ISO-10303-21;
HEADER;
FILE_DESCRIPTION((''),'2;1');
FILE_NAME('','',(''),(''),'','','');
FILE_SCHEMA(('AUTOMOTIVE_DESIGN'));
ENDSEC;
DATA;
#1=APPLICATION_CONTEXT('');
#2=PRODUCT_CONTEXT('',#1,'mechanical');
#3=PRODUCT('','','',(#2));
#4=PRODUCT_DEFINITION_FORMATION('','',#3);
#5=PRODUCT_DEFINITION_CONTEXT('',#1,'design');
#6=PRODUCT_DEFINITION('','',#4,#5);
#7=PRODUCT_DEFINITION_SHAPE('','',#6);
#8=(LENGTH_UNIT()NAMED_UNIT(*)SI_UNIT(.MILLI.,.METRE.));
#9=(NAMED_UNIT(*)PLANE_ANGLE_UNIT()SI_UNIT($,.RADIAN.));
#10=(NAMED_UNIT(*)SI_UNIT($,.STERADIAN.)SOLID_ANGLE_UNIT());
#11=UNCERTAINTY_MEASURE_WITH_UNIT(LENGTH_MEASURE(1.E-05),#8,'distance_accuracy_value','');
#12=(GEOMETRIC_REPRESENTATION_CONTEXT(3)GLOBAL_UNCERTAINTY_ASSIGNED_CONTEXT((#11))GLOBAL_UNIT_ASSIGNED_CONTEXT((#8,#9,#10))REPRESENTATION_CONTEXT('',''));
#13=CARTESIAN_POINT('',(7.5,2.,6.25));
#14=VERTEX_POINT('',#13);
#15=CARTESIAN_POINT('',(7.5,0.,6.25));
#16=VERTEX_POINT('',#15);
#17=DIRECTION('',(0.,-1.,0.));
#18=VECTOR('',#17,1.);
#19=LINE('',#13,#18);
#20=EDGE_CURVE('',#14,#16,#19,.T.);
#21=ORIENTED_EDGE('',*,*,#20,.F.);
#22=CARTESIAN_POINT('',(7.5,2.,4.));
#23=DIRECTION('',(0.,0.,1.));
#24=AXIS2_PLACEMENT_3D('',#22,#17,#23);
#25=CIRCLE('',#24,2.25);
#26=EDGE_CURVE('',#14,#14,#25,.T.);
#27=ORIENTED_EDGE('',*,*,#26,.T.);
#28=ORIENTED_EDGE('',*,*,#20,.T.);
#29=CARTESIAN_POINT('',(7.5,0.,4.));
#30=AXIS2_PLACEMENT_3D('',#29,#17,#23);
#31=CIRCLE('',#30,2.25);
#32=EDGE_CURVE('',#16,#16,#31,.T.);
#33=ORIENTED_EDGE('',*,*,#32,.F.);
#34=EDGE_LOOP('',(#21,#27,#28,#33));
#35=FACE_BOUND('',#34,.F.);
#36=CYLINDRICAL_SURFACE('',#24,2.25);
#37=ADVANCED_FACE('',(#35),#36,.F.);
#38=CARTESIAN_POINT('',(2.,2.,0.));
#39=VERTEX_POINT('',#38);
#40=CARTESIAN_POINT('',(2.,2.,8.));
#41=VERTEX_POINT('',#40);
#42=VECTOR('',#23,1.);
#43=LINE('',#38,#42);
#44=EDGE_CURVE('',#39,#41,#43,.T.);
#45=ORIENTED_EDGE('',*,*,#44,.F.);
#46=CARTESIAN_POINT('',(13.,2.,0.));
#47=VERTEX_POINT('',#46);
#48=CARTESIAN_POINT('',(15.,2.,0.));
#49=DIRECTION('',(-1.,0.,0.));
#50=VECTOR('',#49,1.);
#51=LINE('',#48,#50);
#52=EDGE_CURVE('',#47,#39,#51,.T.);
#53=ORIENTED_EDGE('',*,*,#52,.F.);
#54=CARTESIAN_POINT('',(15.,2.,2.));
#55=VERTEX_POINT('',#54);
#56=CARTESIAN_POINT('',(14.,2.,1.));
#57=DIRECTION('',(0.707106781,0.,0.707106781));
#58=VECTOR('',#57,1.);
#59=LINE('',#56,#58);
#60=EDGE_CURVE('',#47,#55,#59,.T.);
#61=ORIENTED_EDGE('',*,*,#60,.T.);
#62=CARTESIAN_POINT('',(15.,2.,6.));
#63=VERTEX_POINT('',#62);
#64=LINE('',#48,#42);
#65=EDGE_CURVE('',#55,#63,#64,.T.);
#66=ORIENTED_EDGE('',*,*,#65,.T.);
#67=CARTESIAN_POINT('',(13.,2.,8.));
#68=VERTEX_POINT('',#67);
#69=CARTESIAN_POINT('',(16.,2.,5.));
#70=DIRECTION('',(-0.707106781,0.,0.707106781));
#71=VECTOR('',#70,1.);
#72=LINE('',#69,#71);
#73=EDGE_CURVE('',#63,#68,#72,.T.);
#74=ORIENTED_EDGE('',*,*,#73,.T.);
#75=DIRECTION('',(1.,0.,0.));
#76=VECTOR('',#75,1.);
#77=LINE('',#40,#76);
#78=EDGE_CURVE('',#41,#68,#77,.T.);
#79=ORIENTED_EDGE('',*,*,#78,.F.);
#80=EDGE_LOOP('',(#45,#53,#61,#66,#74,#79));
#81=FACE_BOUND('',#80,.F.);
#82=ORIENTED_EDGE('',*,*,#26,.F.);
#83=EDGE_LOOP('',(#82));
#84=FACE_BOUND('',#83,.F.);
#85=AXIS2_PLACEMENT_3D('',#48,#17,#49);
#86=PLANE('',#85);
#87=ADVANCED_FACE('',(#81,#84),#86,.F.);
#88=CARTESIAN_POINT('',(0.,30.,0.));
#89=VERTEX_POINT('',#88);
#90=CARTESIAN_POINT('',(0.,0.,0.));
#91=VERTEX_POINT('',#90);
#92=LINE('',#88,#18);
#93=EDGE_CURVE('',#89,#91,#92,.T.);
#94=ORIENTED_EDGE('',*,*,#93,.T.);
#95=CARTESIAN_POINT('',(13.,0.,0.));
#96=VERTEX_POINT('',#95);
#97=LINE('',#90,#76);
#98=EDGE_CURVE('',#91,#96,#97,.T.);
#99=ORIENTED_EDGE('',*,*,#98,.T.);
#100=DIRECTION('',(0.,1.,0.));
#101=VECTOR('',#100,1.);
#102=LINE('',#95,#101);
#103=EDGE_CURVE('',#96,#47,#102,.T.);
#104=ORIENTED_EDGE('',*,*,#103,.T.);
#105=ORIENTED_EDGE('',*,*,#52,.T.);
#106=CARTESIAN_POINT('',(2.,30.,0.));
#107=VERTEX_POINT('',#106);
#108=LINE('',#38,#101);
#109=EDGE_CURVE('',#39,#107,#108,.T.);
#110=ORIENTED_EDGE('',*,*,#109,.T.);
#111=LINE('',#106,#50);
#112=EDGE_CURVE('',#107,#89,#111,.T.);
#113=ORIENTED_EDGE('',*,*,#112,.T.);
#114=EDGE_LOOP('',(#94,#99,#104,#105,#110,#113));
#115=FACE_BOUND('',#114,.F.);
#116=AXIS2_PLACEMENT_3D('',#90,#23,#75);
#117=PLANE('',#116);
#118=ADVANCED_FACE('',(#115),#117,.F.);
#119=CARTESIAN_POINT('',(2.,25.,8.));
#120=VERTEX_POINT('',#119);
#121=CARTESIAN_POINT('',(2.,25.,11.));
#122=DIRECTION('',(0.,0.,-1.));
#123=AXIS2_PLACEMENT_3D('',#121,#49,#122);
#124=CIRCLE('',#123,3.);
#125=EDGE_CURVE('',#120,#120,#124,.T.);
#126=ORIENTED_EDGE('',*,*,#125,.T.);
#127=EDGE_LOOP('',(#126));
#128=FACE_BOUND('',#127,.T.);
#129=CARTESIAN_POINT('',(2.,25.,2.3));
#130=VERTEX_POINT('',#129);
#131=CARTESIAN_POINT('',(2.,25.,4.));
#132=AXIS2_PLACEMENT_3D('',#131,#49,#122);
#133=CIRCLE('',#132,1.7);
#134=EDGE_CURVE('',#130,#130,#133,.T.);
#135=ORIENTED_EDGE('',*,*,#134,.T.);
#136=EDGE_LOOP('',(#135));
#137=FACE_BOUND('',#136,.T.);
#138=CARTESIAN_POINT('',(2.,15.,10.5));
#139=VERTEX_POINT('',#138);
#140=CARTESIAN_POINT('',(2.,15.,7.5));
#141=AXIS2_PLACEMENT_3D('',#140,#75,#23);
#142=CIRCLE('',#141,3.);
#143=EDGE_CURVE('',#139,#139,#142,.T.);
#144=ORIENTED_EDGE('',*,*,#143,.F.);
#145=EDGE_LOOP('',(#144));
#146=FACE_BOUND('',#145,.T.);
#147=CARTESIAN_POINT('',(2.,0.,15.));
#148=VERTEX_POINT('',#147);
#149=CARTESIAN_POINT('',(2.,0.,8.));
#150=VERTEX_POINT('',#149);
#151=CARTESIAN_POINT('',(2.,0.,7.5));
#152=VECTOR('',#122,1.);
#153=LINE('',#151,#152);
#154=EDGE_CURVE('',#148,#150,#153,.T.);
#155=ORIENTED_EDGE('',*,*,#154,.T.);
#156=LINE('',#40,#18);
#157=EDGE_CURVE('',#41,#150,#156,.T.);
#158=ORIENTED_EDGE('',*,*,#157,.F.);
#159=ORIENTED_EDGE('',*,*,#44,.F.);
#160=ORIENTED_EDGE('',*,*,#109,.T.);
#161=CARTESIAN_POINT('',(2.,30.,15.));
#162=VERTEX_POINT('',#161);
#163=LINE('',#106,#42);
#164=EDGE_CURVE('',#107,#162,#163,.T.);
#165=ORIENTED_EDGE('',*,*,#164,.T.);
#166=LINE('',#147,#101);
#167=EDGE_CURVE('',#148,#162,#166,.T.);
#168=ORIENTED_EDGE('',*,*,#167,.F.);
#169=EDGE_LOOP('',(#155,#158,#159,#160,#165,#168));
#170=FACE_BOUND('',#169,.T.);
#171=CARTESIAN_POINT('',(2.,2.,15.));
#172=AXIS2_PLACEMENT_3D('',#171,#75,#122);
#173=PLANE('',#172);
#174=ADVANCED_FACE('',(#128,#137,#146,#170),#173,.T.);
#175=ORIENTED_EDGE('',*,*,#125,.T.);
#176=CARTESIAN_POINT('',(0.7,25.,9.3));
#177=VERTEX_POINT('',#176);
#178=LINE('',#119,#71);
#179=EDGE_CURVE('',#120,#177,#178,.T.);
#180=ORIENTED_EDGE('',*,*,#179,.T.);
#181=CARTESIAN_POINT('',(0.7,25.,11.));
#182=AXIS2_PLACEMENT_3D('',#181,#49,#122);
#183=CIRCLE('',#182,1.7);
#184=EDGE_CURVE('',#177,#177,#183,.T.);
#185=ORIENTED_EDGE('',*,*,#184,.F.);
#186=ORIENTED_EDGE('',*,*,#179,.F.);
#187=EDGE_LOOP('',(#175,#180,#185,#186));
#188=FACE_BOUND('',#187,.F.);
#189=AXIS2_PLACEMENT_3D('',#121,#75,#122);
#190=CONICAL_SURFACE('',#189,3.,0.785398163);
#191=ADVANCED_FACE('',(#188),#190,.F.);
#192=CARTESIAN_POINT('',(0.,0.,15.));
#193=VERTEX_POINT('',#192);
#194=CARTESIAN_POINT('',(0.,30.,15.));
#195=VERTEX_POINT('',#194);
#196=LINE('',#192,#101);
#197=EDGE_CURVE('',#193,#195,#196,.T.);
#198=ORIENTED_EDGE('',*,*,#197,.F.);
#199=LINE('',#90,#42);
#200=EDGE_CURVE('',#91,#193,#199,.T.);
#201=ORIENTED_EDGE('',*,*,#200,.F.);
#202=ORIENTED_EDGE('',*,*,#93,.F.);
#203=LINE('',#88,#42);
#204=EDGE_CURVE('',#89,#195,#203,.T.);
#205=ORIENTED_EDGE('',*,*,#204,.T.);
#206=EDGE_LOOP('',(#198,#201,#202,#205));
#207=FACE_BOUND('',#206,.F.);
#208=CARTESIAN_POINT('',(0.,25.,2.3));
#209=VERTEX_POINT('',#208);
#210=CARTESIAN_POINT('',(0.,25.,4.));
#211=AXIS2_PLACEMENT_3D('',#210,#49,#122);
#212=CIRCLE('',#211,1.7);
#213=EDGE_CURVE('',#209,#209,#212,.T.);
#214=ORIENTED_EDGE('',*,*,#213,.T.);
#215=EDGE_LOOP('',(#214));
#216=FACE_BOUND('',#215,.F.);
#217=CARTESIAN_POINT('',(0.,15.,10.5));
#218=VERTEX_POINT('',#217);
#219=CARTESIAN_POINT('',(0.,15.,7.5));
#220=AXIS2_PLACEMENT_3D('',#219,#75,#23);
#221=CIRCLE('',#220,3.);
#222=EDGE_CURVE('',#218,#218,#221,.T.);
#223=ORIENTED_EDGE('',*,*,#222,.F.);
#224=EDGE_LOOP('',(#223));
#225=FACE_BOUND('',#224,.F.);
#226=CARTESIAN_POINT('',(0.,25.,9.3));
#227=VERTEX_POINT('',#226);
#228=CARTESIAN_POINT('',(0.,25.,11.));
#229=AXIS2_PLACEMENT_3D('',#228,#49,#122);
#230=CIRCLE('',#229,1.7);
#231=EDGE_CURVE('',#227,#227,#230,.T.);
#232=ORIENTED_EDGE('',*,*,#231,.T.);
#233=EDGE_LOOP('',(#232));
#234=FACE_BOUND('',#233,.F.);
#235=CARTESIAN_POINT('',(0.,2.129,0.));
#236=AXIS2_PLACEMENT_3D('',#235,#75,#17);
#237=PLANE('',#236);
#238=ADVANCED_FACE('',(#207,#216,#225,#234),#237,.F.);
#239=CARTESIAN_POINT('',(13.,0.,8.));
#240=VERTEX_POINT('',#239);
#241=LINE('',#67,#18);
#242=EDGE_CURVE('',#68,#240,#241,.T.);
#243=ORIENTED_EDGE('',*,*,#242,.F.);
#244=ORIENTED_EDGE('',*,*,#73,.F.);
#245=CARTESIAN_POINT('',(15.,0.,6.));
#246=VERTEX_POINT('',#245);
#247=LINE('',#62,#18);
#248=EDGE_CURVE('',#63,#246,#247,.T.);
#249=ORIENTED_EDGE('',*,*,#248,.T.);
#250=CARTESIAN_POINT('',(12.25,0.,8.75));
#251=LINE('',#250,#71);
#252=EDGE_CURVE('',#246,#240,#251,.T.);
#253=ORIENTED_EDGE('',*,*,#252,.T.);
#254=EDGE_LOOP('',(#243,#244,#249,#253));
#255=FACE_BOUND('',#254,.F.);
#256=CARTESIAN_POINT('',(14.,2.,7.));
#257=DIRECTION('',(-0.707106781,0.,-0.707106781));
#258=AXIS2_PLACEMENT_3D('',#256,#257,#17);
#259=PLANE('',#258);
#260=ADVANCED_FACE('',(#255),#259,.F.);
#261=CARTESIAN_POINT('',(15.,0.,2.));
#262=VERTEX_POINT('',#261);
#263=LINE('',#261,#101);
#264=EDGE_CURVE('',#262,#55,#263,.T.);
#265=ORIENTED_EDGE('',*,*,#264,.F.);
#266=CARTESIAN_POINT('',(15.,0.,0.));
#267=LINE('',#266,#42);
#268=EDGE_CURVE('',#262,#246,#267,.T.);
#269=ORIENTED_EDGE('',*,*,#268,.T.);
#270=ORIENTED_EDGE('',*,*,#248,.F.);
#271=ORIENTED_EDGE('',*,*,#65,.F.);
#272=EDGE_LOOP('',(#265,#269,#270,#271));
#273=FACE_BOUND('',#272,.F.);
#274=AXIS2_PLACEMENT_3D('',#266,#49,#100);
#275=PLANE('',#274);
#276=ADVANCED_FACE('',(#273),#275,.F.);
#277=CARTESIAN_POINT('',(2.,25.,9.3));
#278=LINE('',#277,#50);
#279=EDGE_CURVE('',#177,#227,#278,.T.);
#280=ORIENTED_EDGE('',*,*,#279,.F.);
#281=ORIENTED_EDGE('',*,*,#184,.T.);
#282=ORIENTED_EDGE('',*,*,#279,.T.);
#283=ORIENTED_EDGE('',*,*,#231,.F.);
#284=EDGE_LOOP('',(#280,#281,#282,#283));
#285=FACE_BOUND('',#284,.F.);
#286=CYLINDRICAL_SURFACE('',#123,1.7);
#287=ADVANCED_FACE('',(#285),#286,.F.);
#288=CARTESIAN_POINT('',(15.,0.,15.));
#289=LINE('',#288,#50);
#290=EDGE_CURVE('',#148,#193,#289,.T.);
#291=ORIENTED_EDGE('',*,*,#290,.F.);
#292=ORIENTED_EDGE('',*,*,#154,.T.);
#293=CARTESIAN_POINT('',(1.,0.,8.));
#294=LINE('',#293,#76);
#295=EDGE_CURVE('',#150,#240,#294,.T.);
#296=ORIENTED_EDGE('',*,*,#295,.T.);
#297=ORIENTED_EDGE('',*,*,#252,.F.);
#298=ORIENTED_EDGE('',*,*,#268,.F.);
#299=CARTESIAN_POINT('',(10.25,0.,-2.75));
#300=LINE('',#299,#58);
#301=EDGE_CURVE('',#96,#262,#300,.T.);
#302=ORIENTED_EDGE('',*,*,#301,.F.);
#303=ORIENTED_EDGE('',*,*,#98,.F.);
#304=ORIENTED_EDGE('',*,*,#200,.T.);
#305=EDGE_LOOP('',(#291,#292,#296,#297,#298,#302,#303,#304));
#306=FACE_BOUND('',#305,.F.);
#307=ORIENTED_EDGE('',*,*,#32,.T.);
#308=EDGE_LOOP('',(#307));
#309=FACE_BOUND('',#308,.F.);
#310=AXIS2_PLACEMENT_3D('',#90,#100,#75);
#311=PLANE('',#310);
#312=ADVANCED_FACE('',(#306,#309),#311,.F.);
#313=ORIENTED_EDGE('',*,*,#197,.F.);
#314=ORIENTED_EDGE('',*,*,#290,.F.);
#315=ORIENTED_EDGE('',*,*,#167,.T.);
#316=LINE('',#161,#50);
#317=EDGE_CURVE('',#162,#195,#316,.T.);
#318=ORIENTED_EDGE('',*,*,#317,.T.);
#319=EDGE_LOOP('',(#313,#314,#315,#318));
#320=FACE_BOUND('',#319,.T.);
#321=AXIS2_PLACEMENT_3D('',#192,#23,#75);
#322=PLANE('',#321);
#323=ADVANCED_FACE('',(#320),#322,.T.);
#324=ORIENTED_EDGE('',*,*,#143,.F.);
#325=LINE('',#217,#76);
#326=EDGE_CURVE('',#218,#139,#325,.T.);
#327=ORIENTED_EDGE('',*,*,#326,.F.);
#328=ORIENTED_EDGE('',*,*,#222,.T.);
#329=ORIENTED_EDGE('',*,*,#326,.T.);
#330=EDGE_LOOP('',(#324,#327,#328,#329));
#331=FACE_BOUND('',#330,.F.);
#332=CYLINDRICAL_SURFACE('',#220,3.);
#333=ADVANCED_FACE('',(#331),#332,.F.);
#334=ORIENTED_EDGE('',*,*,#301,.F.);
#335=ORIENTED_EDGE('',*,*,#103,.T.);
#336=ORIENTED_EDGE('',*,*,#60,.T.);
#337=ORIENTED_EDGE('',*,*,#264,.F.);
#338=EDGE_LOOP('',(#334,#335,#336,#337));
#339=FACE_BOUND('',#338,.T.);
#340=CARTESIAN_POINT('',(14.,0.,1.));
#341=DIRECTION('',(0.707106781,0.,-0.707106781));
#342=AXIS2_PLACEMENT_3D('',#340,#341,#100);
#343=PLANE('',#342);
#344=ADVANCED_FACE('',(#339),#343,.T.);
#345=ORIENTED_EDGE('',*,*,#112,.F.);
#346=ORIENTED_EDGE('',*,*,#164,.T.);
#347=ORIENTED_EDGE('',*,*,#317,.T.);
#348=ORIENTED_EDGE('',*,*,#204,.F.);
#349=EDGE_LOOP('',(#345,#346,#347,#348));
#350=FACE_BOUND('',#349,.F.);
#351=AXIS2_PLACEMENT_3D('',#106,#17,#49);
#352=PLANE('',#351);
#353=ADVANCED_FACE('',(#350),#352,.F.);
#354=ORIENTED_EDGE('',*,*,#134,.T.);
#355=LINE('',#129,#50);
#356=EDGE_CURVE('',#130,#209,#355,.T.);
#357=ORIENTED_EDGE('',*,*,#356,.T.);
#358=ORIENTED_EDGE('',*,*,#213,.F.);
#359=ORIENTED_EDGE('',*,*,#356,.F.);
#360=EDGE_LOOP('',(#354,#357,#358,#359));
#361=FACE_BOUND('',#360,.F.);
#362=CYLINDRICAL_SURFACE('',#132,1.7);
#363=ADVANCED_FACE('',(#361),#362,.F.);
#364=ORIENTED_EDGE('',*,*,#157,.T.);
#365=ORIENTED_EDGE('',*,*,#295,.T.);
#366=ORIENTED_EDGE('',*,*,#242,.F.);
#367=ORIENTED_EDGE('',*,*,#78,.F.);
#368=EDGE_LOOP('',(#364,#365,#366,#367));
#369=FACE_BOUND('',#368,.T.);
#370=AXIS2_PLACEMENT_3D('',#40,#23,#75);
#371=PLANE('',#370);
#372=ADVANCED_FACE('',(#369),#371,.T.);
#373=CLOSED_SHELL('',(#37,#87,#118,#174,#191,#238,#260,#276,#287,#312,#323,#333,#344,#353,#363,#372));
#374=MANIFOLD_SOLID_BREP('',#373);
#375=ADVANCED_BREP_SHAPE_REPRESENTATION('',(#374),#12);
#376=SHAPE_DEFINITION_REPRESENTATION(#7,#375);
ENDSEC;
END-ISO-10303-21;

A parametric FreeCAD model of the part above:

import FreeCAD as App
import Part
import Sketcher


def edges_at(feature, points):
    """Names of the edges that pass closest to the given points."""
    edges = feature.Shape.Edges
    near = lambda p: min(range(len(edges)), key=lambda i: edges[i].distToShape(Part.Vertex(*p))[0])
    return sorted({f"Edge{near(p) + 1}" for p in points})

doc = App.newDocument("Part")
body = doc.addObject("PartDesign::Body", "Body")

# Sketch on XY plane
sketch1 = body.newObject("Sketcher::SketchObject", "Sketch")
sketch1.AttachmentSupport = (doc.getObject("XY_Plane"), [""])
sketch1.MapMode = "FlatFace"
sketch1.addGeometry([
    Part.LineSegment(App.Vector(0, 30, 0), App.Vector(0, 0, 0)),  # 0
    Part.LineSegment(App.Vector(0, 0, 0), App.Vector(15, 0, 0)),  # 1
    Part.LineSegment(App.Vector(15, 0, 0), App.Vector(15, 2, 0)),  # 2
    Part.LineSegment(App.Vector(15, 2, 0), App.Vector(2, 2, 0)),  # 3
    Part.LineSegment(App.Vector(2, 2, 0), App.Vector(2, 30, 0)),  # 4
    Part.LineSegment(App.Vector(2, 30, 0), App.Vector(0, 30, 0)),  # 5
], False)
sketch1.addConstraint([
    Sketcher.Constraint("Coincident", 0, 2, 1, 1),
    Sketcher.Constraint("Coincident", 1, 2, 2, 1),
    Sketcher.Constraint("Coincident", 2, 2, 3, 1),
    Sketcher.Constraint("Coincident", 3, 2, 4, 1),
    Sketcher.Constraint("Coincident", 4, 2, 5, 1),
    Sketcher.Constraint("Coincident", 5, 2, 0, 1),
    Sketcher.Constraint("Vertical", 0),
    Sketcher.Constraint("Horizontal", 1),
    Sketcher.Constraint("Vertical", 2),
    Sketcher.Constraint("Horizontal", 3),
    Sketcher.Constraint("Vertical", 4),
    Sketcher.Constraint("Horizontal", 5),
    Sketcher.Constraint("Coincident", 0, 2, -1, 1),
    Sketcher.Constraint("Equal", 5, 2),
    Sketcher.Constraint("DistanceX", 1, 1, 1, 2, 15.0),
    Sketcher.Constraint("DistanceX", 5, 2, 5, 1, 2.0),
    Sketcher.Constraint("DistanceY", 0, 2, 0, 1, 30.0),
])
pad1 = body.newObject("PartDesign::Pad", "Pad")
pad1.Profile = sketch1
pad1.Length = 15

# Sketch on YZ plane
sketch2 = body.newObject("Sketcher::SketchObject", "Sketch001")
sketch2.AttachmentSupport = (doc.getObject("YZ_Plane"), [""])
sketch2.MapMode = "FlatFace"
sketch2.addGeometry(Part.Circle(App.Vector(15, 7.5, 0), App.Vector(0, 0, 1), 3), False)
sketch2.addConstraint([
    Sketcher.Constraint("Diameter", 0, 6.0),
    Sketcher.Constraint("DistanceX", -1, 1, 0, 3, 15.0),
    Sketcher.Constraint("DistanceY", -1, 1, 0, 3, 7.5),
])
doc.recompute()
hole = body.newObject("PartDesign::Hole", "Hole")
hole.Profile = sketch2
hole.ThreadType = "None"
hole.Diameter = 6
hole.DepthType = "ThroughAll"
hole.Reversed = True

# Sketch on XZ plane
sketch3 = body.newObject("Sketcher::SketchObject", "Sketch002")
sketch3.AttachmentSupport = (doc.getObject("XZ_Plane"), [""])
sketch3.MapMode = "FlatFace"
sketch3.AttachmentOffset = App.Placement(App.Vector(0, 0, -2), App.Rotation())
sketch3.addGeometry([
    Part.LineSegment(App.Vector(2, 8, 0), App.Vector(2, 15, 0)),
    Part.LineSegment(App.Vector(2, 15, 0), App.Vector(15, 15, 0)),
    Part.LineSegment(App.Vector(15, 15, 0), App.Vector(15, 8, 0)),
    Part.LineSegment(App.Vector(15, 8, 0), App.Vector(2, 8, 0)),
], False)
sketch3.addConstraint([
    Sketcher.Constraint("Coincident", 0, 2, 1, 1),
    Sketcher.Constraint("Coincident", 1, 2, 2, 1),
    Sketcher.Constraint("Coincident", 2, 2, 3, 1),
    Sketcher.Constraint("Coincident", 3, 2, 0, 1),
    Sketcher.Constraint("Vertical", 0),
    Sketcher.Constraint("Horizontal", 1),
    Sketcher.Constraint("Vertical", 2),
    Sketcher.Constraint("Horizontal", 3),
    Sketcher.Constraint("DistanceY", -1, 1, 2, 2, 8.0),
    Sketcher.Constraint("DistanceX", 1, 1, 1, 2, 13.0),
    Sketcher.Constraint("DistanceY", 0, 1, 0, 2, 7.0),
    Sketcher.Constraint("DistanceX", -1, 1, 0, 2, 2.0),
])
pocket1 = body.newObject("PartDesign::Pocket", "Pocket")
pocket1.Profile = sketch3
pocket1.Type = "ThroughAll"
pocket1.Reversed = True

# Sketch on YZ plane
sketch4 = body.newObject("Sketcher::SketchObject", "Sketch003")
sketch4.AttachmentSupport = (doc.getObject("YZ_Plane"), [""])
sketch4.MapMode = "FlatFace"
sketch4.AttachmentOffset = App.Placement(App.Vector(0, 0, 2), App.Rotation())
sketch4.addGeometry([
    Part.Circle(App.Vector(25, 11, 0), App.Vector(0, 0, 1), 1.7),
    Part.Circle(App.Vector(25, 4, 0), App.Vector(0, 0, 1), 1.7),
], False)
sketch4.addConstraint([
    Sketcher.Constraint("Equal", 0, 1),
    Sketcher.Constraint("Vertical", 0, 3, 1, 3),
    Sketcher.Constraint("Diameter", 0, 3.4),
    Sketcher.Constraint("DistanceX", -1, 1, 0, 3, 25.0),
    Sketcher.Constraint("DistanceY", -1, 1, 0, 3, 11.0),
    Sketcher.Constraint("DistanceY", -1, 1, 1, 3, 4.0),
])
doc.recompute()
hole2 = body.newObject("PartDesign::Hole", "Hole001")
hole2.Profile = sketch4
hole2.ThreadType = "None"
hole2.Diameter = 3.4
hole2.DepthType = "ThroughAll"

# Sketch on XZ plane
sketch5 = body.newObject("Sketcher::SketchObject", "Sketch004")
sketch5.AttachmentSupport = (doc.getObject("XZ_Plane"), [""])
sketch5.MapMode = "FlatFace"
sketch5.AttachmentOffset = App.Placement(App.Vector(0, 0, -2), App.Rotation())
sketch5.addGeometry(Part.Circle(App.Vector(7.5, 4, 0), App.Vector(0, 0, 1), 2.25), False)
sketch5.addConstraint([
    Sketcher.Constraint("Diameter", 0, 4.5),
    Sketcher.Constraint("DistanceY", -1, 1, 0, 3, 4.0),
    Sketcher.Constraint("DistanceX", -1, 1, 0, 3, 7.5),
])
doc.recompute()
hole3 = body.newObject("PartDesign::Hole", "Hole002")
hole3.Profile = sketch5
hole3.ThreadType = "None"
hole3.Diameter = 4.5
hole3.DepthType = "ThroughAll"
hole3.Reversed = True

# Sketch on YZ plane
sketch6 = body.newObject("Sketcher::SketchObject", "Sketch005")
sketch6.AttachmentSupport = (doc.getObject("YZ_Plane"), [""])
sketch6.MapMode = "FlatFace"
sketch6.AttachmentOffset = App.Placement(App.Vector(0, 0, 2), App.Rotation())
sketch6.addGeometry(Part.Circle(App.Vector(25, 11, 0), App.Vector(0, 0, 1), 1.7), False)
sketch6.addConstraint([
    Sketcher.Constraint("Diameter", 0, 3.4),
    Sketcher.Constraint("DistanceX", -1, 1, 0, 3, 25.0),
    Sketcher.Constraint("DistanceY", -1, 1, 0, 3, 11.0),
])
doc.recompute()
hole4 = body.newObject("PartDesign::Hole", "Hole003")
hole4.Profile = sketch6
hole4.ThreadType = "None"
hole4.Diameter = 3.4
hole4.DepthType = "ThroughAll"
hole4.HoleCutType = "Countersink"
hole4.HoleCutDiameter = 6
hole4.HoleCutCountersinkAngle = 90
doc.recompute()

chamfer = body.newObject("PartDesign::Chamfer", "Chamfer")
chamfer.Base = (hole4, edges_at(hole4, [(15, 1, 8), (15, 1, 0)]))
chamfer.Size = 2

doc.recompute()
